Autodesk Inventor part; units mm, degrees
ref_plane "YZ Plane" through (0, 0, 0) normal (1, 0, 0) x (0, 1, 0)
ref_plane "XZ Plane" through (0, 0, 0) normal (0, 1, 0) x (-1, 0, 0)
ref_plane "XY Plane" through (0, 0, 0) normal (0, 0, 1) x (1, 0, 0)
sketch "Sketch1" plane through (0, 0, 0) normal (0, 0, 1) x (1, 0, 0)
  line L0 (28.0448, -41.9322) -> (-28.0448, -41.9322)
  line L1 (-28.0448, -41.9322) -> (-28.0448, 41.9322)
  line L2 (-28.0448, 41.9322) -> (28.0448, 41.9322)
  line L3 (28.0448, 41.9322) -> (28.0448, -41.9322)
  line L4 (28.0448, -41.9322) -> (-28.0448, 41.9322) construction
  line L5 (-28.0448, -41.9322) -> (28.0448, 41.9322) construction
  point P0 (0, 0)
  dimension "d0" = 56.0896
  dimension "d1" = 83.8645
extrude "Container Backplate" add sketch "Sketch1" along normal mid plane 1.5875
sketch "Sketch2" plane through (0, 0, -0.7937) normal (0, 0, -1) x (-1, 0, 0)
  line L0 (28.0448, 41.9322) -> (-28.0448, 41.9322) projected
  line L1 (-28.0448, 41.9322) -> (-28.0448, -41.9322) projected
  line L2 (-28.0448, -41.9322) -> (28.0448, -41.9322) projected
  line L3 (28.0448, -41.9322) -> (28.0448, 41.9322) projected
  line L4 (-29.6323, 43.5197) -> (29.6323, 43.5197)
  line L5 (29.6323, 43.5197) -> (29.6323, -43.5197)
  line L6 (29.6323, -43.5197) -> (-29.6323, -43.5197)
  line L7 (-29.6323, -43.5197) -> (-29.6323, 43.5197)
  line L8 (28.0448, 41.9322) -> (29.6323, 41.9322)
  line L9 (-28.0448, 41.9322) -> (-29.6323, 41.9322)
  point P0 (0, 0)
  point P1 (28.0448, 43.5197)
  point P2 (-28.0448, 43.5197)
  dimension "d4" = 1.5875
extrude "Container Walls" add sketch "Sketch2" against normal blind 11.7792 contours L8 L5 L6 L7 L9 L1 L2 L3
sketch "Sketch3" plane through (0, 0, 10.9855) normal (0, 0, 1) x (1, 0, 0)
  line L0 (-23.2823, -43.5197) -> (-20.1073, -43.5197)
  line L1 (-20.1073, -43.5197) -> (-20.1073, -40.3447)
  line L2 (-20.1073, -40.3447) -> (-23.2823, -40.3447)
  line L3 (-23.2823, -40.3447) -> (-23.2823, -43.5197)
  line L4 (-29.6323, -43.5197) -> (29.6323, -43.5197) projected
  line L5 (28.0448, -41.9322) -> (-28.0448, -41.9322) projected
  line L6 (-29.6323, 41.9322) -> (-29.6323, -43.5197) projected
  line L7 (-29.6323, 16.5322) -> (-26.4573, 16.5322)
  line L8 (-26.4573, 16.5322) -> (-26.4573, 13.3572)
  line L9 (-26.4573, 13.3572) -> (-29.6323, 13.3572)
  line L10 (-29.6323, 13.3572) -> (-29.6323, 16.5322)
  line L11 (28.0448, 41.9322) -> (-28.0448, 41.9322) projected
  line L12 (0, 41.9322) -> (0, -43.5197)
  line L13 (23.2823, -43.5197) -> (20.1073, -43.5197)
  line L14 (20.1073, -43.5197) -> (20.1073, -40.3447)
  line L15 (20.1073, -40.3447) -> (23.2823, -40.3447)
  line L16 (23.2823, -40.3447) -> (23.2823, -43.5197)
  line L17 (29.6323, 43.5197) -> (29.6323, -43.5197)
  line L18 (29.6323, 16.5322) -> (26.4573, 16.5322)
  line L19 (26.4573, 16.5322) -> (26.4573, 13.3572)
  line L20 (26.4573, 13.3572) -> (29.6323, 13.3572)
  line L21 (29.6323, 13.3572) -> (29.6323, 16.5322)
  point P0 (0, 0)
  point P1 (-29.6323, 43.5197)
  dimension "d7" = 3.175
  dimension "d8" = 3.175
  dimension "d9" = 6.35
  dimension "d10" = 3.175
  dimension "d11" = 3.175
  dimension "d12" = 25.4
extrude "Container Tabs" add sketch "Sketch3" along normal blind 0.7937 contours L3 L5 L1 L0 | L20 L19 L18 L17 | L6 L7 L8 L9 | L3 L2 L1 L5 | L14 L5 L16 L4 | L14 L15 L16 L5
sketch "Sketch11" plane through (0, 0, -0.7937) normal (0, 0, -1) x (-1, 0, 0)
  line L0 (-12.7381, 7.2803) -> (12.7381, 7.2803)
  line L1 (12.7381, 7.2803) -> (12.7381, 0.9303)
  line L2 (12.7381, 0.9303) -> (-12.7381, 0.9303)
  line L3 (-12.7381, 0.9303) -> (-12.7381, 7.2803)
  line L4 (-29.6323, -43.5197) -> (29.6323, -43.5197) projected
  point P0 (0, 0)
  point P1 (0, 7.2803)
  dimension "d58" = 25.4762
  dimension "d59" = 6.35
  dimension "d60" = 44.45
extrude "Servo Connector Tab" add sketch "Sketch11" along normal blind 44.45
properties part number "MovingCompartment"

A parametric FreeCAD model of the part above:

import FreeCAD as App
import Part
import Sketcher
from FreeCAD import Vector
Q = App.Units.Quantity

doc = App.newDocument("Part")
body = doc.addObject("PartDesign::Body", "Body")

sketch1 = body.newObject("Sketcher::SketchObject", "Sketch")
sketch1.AttachmentSupport = (doc.getObject("XY_Plane"), [""])
sketch1.MapMode = "FlatFace"
sketch1.addGeometry([
    Part.LineSegment(Vector(-28, -42, 0), Vector(28, -42, 0)),
    Part.LineSegment(Vector(28, -42, 0), Vector(28, 42, 0)),
    Part.LineSegment(Vector(28, 42, 0), Vector(-28, 42, 0)),
    Part.LineSegment(Vector(-28, 42, 0), Vector(-28, -42, 0)),
], False)
sketch1.addConstraint([
    Sketcher.Constraint("Coincident", 0, 2, 1, 1),
    Sketcher.Constraint("Coincident", 1, 2, 2, 1),
    Sketcher.Constraint("Coincident", 2, 2, 3, 1),
    Sketcher.Constraint("Coincident", 3, 2, 0, 1),
    Sketcher.Constraint("Horizontal", 0),
    Sketcher.Constraint("Vertical", 1),
    Sketcher.Constraint("Horizontal", 2),
    Sketcher.Constraint("Vertical", 3),
    Sketcher.Constraint("Symmetric", 0, 2, 2, 2, -1, 1),
    Sketcher.Constraint("DistanceX", 0, 1, 0, 2, Q("56.0896 mm")),
    Sketcher.Constraint("DistanceY", 1, 1, 1, 2, Q("83.8644 mm")),
])
pad1 = body.newObject("PartDesign::Pad", "Pad")
pad1.Profile = sketch1
pad1.Length = Q("0.0625 in")
pad1.Midplane = True

sketch2 = body.newObject("Sketcher::SketchObject", "Sketch001")
sketch2.AttachmentSupport = (doc.getObject("XY_Plane"), [""])
sketch2.MapMode = "FlatFace"
sketch2.AttachmentOffset = App.Placement(Vector(0, 0, -0.031248 * 25.4), App.Rotation())
sketch2.addGeometry([
    Part.LineSegment(Vector(-29.6, 41.9, 0), Vector(-28, 41.9, 0)),
    Part.LineSegment(Vector(-28, 41.9, 0), Vector(-28, -41.9, 0)),
    Part.LineSegment(Vector(-28, -41.9, 0), Vector(28, -41.9, 0)),
    Part.LineSegment(Vector(28, -41.9, 0), Vector(28, 41.9, 0)),
    Part.LineSegment(Vector(28, 41.9, 0), Vector(29.6, 41.9, 0)),
    Part.LineSegment(Vector(29.6, 41.9, 0), Vector(29.6, -43.5, 0)),
    Part.LineSegment(Vector(29.6, -43.5, 0), Vector(-29.6, -43.5, 0)),
    Part.LineSegment(Vector(-29.6, -43.5, 0), Vector(-29.6, 41.9, 0)),
], False)
sketch2.addConstraint([
    Sketcher.Constraint("Coincident", 0, 2, 1, 1),
    Sketcher.Constraint("Coincident", 1, 2, 2, 1),
    Sketcher.Constraint("Coincident", 2, 2, 3, 1),
    Sketcher.Constraint("Coincident", 3, 2, 4, 1),
    Sketcher.Constraint("Coincident", 4, 2, 5, 1),
    Sketcher.Constraint("Coincident", 5, 2, 6, 1),
    Sketcher.Constraint("Coincident", 6, 2, 7, 1),
    Sketcher.Constraint("Coincident", 7, 2, 0, 1),
    Sketcher.Constraint("Horizontal", 0),
    Sketcher.Constraint("Vertical", 1),
    Sketcher.Constraint("Horizontal", 2),
    Sketcher.Constraint("Vertical", 3),
    Sketcher.Constraint("Horizontal", 4),
    Sketcher.Constraint("Vertical", 5),
    Sketcher.Constraint("Horizontal", 6),
    Sketcher.Constraint("Vertical", 7),
    Sketcher.Constraint("Symmetric", 0, 2, 2, 2, -1, 1),
    Sketcher.Constraint("Symmetric", 4, 2, 7, 2, -2),
    Sketcher.Constraint("DistanceX", 0, 1, 0, 2, Q("0.0625 in")),
    Sketcher.Constraint("DistanceY", 5, 2, 2, 2, Q("0.0625 in")),
    Sketcher.Constraint("DistanceX", 2, 1, 2, 2, Q("56.0896 mm")),
    Sketcher.Constraint("DistanceY", 1, 2, 1, 1, Q("83.8644 mm")),
])
pad2 = body.newObject("PartDesign::Pad", "Pad001")
pad2.Profile = sketch2
pad2.Length = 11.7792

sketch3 = body.newObject("Sketcher::SketchObject", "Sketch002")
sketch3.AttachmentSupport = (doc.getObject("XY_Plane"), [""])
sketch3.MapMode = "FlatFace"
sketch3.AttachmentOffset = App.Placement(Vector(0, 0, 0.4325 * 25.4), App.Rotation())
sketch3.addGeometry([
    Part.LineSegment(Vector(-23.3, -43.5, 0), Vector(-20.1, -43.5, 0)),
    Part.LineSegment(Vector(-20.1, -43.5, 0), Vector(-20.1, -40.3, 0)),
    Part.LineSegment(Vector(-20.1, -40.3, 0), Vector(-23.3, -40.3, 0)),
    Part.LineSegment(Vector(-23.3, -40.3, 0), Vector(-23.3, -43.5, 0)),
    Part.LineSegment(Vector(26.5, 13.4, 0), Vector(29.6, 13.4, 0)),
    Part.LineSegment(Vector(29.6, 13.4, 0), Vector(29.6, 16.5, 0)),
    Part.LineSegment(Vector(29.6, 16.5, 0), Vector(26.5, 16.5, 0)),
    Part.LineSegment(Vector(26.5, 16.5, 0), Vector(26.5, 13.4, 0)),
    Part.LineSegment(Vector(-29.6, 16.5, 0), Vector(-29.6, 13.4, 0)),
    Part.LineSegment(Vector(-29.6, 13.4, 0), Vector(-26.5, 13.4, 0)),
    Part.LineSegment(Vector(-26.5, 13.4, 0), Vector(-26.5, 16.5, 0)),
    Part.LineSegment(Vector(-26.5, 16.5, 0), Vector(-29.6, 16.5, 0)),
    Part.LineSegment(Vector(20.1, -43.5, 0), Vector(23.3, -43.5, 0)),
    Part.LineSegment(Vector(23.3, -43.5, 0), Vector(23.3, -40.3, 0)),
    Part.LineSegment(Vector(23.3, -40.3, 0), Vector(20.1, -40.3, 0)),
    Part.LineSegment(Vector(20.1, -40.3, 0), Vector(20.1, -43.5, 0)),
], False)
sketch3.addConstraint([
    Sketcher.Constraint("Coincident", 0, 2, 1, 1),
    Sketcher.Constraint("Coincident", 1, 2, 2, 1),
    Sketcher.Constraint("Coincident", 2, 2, 3, 1),
    Sketcher.Constraint("Coincident", 3, 2, 0, 1),
    Sketcher.Constraint("Coincident", 4, 2, 5, 1),
    Sketcher.Constraint("Coincident", 5, 2, 6, 1),
    Sketcher.Constraint("Coincident", 6, 2, 7, 1),
    Sketcher.Constraint("Coincident", 7, 2, 4, 1),
    Sketcher.Constraint("Coincident", 8, 2, 9, 1),
    Sketcher.Constraint("Coincident", 9, 2, 10, 1),
    Sketcher.Constraint("Coincident", 10, 2, 11, 1),
    Sketcher.Constraint("Coincident", 11, 2, 8, 1),
    Sketcher.Constraint("Coincident", 12, 2, 13, 1),
    Sketcher.Constraint("Coincident", 13, 2, 14, 1),
    Sketcher.Constraint("Coincident", 14, 2, 15, 1),
    Sketcher.Constraint("Coincident", 15, 2, 12, 1),
    Sketcher.Constraint("Horizontal", 0),
    Sketcher.Constraint("Vertical", 1),
    Sketcher.Constraint("Horizontal", 2),
    Sketcher.Constraint("Vertical", 3),
    Sketcher.Constraint("Horizontal", 4),
    Sketcher.Constraint("Vertical", 5),
    Sketcher.Constraint("Horizontal", 6),
    Sketcher.Constraint("Vertical", 7),
    Sketcher.Constraint("Vertical", 8),
    Sketcher.Constraint("Horizontal", 9),
    Sketcher.Constraint("Vertical", 10),
    Sketcher.Constraint("Horizontal", 11),
    Sketcher.Constraint("Horizontal", 12),
    Sketcher.Constraint("Vertical", 13),
    Sketcher.Constraint("Horizontal", 14),
    Sketcher.Constraint("Vertical", 15),
    Sketcher.Constraint("Symmetric", 4, 2, 8, 2, -2),
    Sketcher.Constraint("Symmetric", 6, 2, 10, 2, -2),
    Sketcher.Constraint("Symmetric", 3, 2, 12, 2, -2),
    Sketcher.Constraint("Symmetric", 1, 2, 14, 2, -2),
    Sketcher.Constraint("Equal", 2, 4),
    Sketcher.Constraint("Equal", 14, 1),
    Sketcher.Constraint("Equal", 3, 5),
    Sketcher.Constraint("DistanceX", 0, 1, 0, 2, Q("0.125 in")),
    Sketcher.Constraint("DistanceX", 8, 2, 2, 2, Q("0.25 in")),
    Sketcher.Constraint("DistanceX", 0, 2, -1, 1, Q("20.1073 mm")),
    Sketcher.Constraint("DistanceY", 0, 2, -1, 1, Q("43.5197 mm")),
    Sketcher.Constraint("DistanceY", -1, 1, 4, 2, Q("13.3572 mm")),
])
pad3 = body.newObject("PartDesign::Pad", "Pad002")
pad3.Profile = sketch3
pad3.Length = Q("0.031248 in")

sketch4 = body.newObject("Sketcher::SketchObject", "Sketch003")
sketch4.AttachmentSupport = (doc.getObject("XY_Plane"), [""])
sketch4.MapMode = "FlatFace"
sketch4.AttachmentOffset = App.Placement(Vector(0, 0, -0.031248 * 25.4), App.Rotation())
sketch4.addGeometry([
    Part.LineSegment(Vector(-13, 7, 0), Vector(13, 7, 0)),
    Part.LineSegment(Vector(13, 7, 0), Vector(13, 1, 0)),
    Part.LineSegment(Vector(13, 1, 0), Vector(-13, 1, 0)),
    Part.LineSegment(Vector(-13, 1, 0), Vector(-13, 7, 0)),
], False)
sketch4.addConstraint([
    Sketcher.Constraint("Coincident", 0, 2, 1, 1),
    Sketcher.Constraint("Coincident", 1, 2, 2, 1),
    Sketcher.Constraint("Coincident", 2, 2, 3, 1),
    Sketcher.Constraint("Coincident", 3, 2, 0, 1),
    Sketcher.Constraint("Horizontal", 0),
    Sketcher.Constraint("Vertical", 1),
    Sketcher.Constraint("Horizontal", 2),
    Sketcher.Constraint("Vertical", 3),
    Sketcher.Constraint("DistanceY", 1, 2, 1, 1, Q("0.25 in")),
    Sketcher.Constraint("DistanceX", 0, 1, 0, 2, Q("1.003 in")),
    Sketcher.Constraint("DistanceX", -1, 1, 0, 2, Q("0.5015 in")),
    Sketcher.Constraint("DistanceY", -1, 1, 0, 2, Q("7.2803 mm")),
])
pad4 = body.newObject("PartDesign::Pad", "Pad003")
pad4.Profile = sketch4
pad4.Length = Q("1.75 in")
pad4.Reversed = True

doc.recompute()
